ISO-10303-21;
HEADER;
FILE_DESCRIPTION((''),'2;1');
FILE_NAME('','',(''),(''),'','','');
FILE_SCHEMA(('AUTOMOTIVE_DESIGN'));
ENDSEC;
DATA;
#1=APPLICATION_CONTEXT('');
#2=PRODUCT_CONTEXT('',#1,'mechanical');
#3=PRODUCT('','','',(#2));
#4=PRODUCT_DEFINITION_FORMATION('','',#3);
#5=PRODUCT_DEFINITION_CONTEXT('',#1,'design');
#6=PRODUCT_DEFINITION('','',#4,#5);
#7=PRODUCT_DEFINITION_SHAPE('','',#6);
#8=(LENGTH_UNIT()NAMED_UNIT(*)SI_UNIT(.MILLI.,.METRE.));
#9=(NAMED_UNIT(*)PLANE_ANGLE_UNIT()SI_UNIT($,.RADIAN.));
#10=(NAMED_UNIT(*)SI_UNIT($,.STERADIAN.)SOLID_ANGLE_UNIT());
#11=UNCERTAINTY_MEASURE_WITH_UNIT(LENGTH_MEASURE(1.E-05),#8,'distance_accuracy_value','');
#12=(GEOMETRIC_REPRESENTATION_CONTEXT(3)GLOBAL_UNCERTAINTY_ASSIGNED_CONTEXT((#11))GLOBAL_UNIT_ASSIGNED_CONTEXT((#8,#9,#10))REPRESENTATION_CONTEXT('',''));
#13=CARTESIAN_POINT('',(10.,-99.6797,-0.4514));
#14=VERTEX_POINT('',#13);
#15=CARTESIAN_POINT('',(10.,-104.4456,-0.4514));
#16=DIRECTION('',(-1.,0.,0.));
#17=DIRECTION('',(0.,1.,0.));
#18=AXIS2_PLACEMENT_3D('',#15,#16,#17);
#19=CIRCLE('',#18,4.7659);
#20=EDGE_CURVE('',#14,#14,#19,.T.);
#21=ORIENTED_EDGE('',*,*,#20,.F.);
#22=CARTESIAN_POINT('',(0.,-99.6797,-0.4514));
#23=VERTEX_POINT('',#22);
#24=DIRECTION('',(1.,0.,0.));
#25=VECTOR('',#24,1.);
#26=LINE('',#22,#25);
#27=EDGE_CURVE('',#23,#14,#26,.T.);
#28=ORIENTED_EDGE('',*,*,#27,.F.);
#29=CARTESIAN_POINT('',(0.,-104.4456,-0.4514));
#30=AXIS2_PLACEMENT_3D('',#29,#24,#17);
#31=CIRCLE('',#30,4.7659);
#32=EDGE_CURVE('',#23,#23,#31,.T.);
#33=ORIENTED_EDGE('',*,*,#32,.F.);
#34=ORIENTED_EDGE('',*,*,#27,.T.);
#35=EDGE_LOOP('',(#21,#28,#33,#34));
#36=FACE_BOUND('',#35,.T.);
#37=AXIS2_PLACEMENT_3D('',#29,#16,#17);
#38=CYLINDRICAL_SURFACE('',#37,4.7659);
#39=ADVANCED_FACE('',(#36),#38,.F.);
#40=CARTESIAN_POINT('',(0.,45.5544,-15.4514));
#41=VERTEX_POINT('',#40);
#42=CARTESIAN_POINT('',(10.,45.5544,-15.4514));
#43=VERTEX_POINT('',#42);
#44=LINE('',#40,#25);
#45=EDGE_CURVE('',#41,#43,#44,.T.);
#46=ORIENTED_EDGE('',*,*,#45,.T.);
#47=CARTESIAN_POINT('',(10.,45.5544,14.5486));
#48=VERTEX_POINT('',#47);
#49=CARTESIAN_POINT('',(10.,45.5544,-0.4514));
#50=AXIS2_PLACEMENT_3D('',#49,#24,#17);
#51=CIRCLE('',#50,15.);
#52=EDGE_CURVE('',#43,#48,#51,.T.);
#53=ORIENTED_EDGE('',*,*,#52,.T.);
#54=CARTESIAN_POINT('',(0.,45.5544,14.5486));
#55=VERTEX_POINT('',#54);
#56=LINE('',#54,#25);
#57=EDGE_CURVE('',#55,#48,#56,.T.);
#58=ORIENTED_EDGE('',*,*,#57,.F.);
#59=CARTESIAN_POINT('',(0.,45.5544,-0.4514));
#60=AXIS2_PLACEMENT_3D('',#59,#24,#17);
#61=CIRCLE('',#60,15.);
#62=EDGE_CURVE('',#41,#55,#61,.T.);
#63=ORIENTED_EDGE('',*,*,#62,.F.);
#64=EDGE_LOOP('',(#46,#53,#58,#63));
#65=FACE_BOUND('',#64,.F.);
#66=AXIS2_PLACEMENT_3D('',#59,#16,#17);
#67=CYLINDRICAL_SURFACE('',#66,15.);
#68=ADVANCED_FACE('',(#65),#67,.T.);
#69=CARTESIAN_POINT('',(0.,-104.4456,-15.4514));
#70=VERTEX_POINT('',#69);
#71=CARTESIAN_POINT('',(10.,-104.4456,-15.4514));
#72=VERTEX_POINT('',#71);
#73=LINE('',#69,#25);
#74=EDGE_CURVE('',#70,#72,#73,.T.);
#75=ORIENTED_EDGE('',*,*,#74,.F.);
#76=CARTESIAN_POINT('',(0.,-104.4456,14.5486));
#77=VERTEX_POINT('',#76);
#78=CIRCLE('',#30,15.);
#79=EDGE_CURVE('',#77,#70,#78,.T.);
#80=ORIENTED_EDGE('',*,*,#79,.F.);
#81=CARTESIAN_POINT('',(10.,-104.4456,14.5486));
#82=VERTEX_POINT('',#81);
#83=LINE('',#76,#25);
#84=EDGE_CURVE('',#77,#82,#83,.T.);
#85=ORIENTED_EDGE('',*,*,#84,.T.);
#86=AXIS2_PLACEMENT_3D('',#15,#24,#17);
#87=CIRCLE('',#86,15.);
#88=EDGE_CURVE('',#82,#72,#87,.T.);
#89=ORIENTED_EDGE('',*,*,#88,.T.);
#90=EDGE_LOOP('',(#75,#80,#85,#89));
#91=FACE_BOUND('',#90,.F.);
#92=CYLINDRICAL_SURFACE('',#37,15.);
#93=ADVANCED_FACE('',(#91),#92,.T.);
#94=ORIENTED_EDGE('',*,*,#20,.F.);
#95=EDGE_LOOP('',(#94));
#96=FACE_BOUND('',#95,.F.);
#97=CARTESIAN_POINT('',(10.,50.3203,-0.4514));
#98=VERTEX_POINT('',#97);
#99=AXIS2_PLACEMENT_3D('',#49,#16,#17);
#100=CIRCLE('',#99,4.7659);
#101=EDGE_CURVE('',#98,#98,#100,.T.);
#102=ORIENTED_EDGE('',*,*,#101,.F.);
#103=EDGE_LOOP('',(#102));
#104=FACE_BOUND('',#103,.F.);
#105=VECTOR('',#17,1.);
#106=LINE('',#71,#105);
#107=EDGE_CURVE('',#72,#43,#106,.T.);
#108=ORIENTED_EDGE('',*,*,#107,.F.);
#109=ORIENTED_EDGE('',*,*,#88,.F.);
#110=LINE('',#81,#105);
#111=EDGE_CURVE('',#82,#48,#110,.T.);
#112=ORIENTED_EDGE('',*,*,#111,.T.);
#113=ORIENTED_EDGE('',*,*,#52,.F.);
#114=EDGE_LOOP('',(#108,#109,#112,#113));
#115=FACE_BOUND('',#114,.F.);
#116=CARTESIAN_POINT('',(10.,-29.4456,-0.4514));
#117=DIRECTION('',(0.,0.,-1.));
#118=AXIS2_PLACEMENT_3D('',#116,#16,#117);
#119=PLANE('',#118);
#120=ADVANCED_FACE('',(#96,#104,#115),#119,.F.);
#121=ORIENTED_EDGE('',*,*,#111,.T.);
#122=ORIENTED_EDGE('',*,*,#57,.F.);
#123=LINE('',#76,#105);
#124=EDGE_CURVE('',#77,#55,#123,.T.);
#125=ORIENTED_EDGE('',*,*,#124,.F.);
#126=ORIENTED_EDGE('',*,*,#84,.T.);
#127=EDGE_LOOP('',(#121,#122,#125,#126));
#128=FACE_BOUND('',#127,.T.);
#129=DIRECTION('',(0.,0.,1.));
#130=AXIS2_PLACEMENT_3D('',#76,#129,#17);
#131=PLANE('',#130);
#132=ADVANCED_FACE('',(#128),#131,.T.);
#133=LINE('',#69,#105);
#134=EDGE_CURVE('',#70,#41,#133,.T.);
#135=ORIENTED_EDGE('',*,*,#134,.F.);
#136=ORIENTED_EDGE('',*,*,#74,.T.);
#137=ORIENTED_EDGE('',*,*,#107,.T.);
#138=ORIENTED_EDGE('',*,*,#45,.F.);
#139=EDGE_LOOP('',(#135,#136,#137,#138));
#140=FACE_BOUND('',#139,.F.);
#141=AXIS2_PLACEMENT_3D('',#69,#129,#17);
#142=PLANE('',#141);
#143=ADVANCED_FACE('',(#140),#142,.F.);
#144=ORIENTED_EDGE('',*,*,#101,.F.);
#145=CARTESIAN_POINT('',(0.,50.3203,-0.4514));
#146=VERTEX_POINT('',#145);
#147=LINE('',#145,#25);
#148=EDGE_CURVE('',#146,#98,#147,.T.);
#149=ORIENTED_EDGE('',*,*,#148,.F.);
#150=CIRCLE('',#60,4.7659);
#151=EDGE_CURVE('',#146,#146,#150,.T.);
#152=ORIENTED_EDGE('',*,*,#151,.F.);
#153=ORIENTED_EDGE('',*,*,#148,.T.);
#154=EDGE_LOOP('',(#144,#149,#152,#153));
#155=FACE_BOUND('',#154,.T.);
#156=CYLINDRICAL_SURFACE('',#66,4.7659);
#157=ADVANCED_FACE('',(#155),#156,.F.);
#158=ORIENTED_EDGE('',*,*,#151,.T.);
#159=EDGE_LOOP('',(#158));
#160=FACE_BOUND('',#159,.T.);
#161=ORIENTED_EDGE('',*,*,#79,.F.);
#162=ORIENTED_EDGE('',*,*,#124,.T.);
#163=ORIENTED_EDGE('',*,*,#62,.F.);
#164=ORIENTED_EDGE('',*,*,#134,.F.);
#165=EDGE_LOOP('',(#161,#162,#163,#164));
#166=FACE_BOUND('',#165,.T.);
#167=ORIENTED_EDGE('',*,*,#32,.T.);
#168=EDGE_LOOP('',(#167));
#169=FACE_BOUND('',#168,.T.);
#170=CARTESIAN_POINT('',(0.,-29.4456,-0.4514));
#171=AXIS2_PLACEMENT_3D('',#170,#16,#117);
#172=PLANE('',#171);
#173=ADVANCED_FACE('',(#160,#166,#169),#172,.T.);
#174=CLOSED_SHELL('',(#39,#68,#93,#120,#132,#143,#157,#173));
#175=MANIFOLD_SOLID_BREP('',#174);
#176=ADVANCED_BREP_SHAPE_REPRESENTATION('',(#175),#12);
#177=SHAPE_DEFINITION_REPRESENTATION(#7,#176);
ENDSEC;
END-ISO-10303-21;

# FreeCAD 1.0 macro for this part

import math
import FreeCAD as App
import Part
import Sketcher
from FreeCAD import Vector
Q = App.Units.Quantity

doc = App.newDocument("Part")
params = doc.addObject("Spreadsheet::Sheet", "Params")
for row, (alias, value) in enumerate([
    ("pad1_length", "0.3937008 in"),
    ("pocket1_length", "2.125 in"),
], start=1):
    params.set(f"A{row}", alias)
    params.set(f"B{row}", "=" + value)
    params.setAlias(f"B{row}", alias)

body = doc.addObject("PartDesign::Body", "Body")

# Sketch on YZ plane
sketch1 = body.newObject("Sketcher::SketchObject", "Sketch")
sketch1.AttachmentSupport = (doc.getObject("YZ_Plane"), [""])
sketch1.MapMode = "FlatFace"
sketch1.addGeometry([
    Part.LineSegment(Vector(46, 15, 0), Vector(-104, 15, 0)),
    Part.ArcOfCircle(Part.Circle(Vector(-104, 0, 0), Vector(0, 0, 1), 15), math.radians(90), math.radians(270)),
    Part.LineSegment(Vector(-104, -15, 0), Vector(46, -15, 0)),
    Part.ArcOfCircle(Part.Circle(Vector(46, 0, 0), Vector(0, 0, 1), 15), math.radians(-90), math.radians(90)),
], False)
sketch1.addConstraint([
    Sketcher.Constraint("Tangent", 0, 2, 1, 1),
    Sketcher.Constraint("Tangent", 1, 2, 2, 1),
    Sketcher.Constraint("Tangent", 2, 2, 3, 1),
    Sketcher.Constraint("Tangent", 3, 2, 0, 1),
    Sketcher.Constraint("Horizontal", 0),
    Sketcher.Constraint("Horizontal", 2),
    Sketcher.Constraint("Radius", 1, 15.0),
    Sketcher.Constraint("DistanceX", 0, 2, 0, 1, Q("5.9055 in")),
    Sketcher.Constraint("DistanceX", 1, 3, -1, 1, 104.4456),
    Sketcher.Constraint("DistanceY", 1, 3, -1, 1, 0.4514),
])
pad1 = body.newObject("PartDesign::Pad", "Pad")
pad1.Profile = sketch1
pad1.setExpression("Length", "Params.pad1_length")

# Sketch on YZ plane
sketch2 = body.newObject("Sketcher::SketchObject", "Sketch001")
sketch2.AttachmentSupport = (doc.getObject("YZ_Plane"), [""])
sketch2.MapMode = "FlatFace"
sketch2.addGeometry([
    Part.Circle(Vector(-104.4, -0.5, 0), Vector(0, 0, 1), 4.8),
    Part.Circle(Vector(45.6, -0.5, 0), Vector(0, 0, 1), 4.8),
], False)
sketch2.addConstraint([
    Sketcher.Constraint("Equal", 0, 1),
    Sketcher.Constraint("Horizontal", 0, 3, 1, 3),
    Sketcher.Constraint("Diameter", 0, 9.5318),
    Sketcher.Constraint("DistanceX", 0, 3, 1, 3, Q("5.9055 in")),
    Sketcher.Constraint("DistanceX", 0, 3, -1, 1, 104.4456),
    Sketcher.Constraint("DistanceY", 0, 3, -1, 1, 0.4514),
])
pocket1 = body.newObject("PartDesign::Pocket", "Pocket")
pocket1.Profile = sketch2
pocket1.setExpression("Length", "Params.pocket1_length")
pocket1.Reversed = True

doc.recompute()
